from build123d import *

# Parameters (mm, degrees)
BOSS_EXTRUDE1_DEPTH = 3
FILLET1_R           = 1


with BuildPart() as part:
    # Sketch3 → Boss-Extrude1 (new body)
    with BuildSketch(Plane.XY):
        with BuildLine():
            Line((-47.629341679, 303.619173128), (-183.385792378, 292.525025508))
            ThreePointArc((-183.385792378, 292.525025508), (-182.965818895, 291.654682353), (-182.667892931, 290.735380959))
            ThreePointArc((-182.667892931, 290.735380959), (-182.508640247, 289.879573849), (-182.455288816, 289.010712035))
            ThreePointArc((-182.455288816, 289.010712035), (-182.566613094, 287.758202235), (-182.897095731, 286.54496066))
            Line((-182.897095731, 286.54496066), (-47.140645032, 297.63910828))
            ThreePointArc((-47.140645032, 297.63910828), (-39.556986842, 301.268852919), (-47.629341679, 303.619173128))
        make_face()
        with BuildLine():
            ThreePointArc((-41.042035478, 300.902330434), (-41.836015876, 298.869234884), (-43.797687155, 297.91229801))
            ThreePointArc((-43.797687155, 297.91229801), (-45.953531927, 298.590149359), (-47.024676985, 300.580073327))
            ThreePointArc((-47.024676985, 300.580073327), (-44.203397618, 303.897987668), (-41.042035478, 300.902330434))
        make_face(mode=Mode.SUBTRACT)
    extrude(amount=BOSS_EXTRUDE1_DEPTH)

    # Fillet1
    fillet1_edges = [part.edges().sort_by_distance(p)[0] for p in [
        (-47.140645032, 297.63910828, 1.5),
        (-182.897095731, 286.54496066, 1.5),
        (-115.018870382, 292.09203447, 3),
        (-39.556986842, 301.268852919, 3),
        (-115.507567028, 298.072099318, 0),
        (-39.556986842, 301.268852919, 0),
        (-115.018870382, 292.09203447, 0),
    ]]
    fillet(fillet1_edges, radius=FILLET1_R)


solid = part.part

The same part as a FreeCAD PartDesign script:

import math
import FreeCAD as App
import Part
import Sketcher

V = App.Vector


def edges_at(feature, points):
    """Names of the edges that pass closest to the given points."""
    edges = feature.Shape.Edges
    near = lambda p: min(range(len(edges)), key=lambda i: edges[i].distToShape(Part.Vertex(*p))[0])
    return sorted({f"Edge{near(p) + 1}" for p in points})

doc = App.newDocument("Part")
body = doc.addObject("PartDesign::Body", "Body")

# Sketch on XY plane
sketch1 = doc.addObject("Sketcher::SketchObject", "Sketch")
body.addObject(sketch1)
sketch1.AttachmentSupport = (doc.XY_Plane, [""])
sketch1.MapMode = "FlatFace"
sketch1.addGeometry([
    Part.LineSegment(V(-47.6, 303.6, 0), V(-183.4, 292.5, 0)),  # 0
    Part.ArcOfCircle(Part.Circle(V(-189.6, 289, 0), V(0, 0, 1), 7.1), math.radians(14.06), math.radians(29.66)),  # 1
    Part.ArcOfCircle(Part.Circle(V(-189.6, 289, 0), V(0, 0, 1), 7.1), math.radians(0), math.radians(14.06)),  # 2
    Part.ArcOfCircle(Part.Circle(V(-189.6, 289, 0), V(0, 0, 1), 7.1), math.radians(-20), math.radians(0)),  # 3
    Part.LineSegment(V(-182.9, 286.5, 0), V(-47.1, 297.6, 0)),  # 4
    Part.ArcOfCircle(Part.Circle(V(-44, 300.9, 0), V(0, 0, 1), 4.5), math.radians(-134), math.radians(143)),  # 5
    Part.ArcOfCircle(Part.Circle(V(-44, 300.9, 0), V(0, 0, 1), 3), math.radians(0), math.radians(186)),  # 6
    Part.ArcOfCircle(Part.Circle(V(-44, 300.9, 0), V(0, 0, 1), 3), math.radians(-85), math.radians(0)),  # 7
    Part.ArcOfCircle(Part.Circle(V(-44, 300.9, 0), V(0, 0, 1), 3), math.radians(-174), math.radians(-85)),  # 8
], False)
sketch1.addConstraint([
    Sketcher.Constraint("Coincident", 0, 2, 1, 2),
    Sketcher.Constraint("Tangent", 1, 1, 2, 2),
    Sketcher.Constraint("Tangent", 2, 1, 3, 2),
    Sketcher.Constraint("Coincident", 3, 1, 4, 1),
    Sketcher.Constraint("Coincident", 4, 2, 5, 1),
    Sketcher.Constraint("Coincident", 5, 2, 0, 1),
    Sketcher.Constraint("Tangent", 6, 1, 7, 2),
    Sketcher.Constraint("Tangent", 7, 1, 8, 2),
    Sketcher.Constraint("Tangent", 8, 1, 6, 2),
    Sketcher.Constraint("Coincident", 3, 3, 1, 3),
    Sketcher.Constraint("Coincident", 6, 3, 5, 3),
    Sketcher.Constraint("Parallel", 0, 4),
    Sketcher.Constraint("Horizontal", 3, 3, 2, 1),
    Sketcher.Constraint("Horizontal", 8, 3, 6, 1),
    Sketcher.Constraint("Equal", 0, 4),
    Sketcher.Constraint("Radius", 6, 3.0),
    Sketcher.Constraint("Radius", 5, 4.5),
    Sketcher.Constraint("Radius", 1, 7.101658),
    Sketcher.Constraint("DistanceY", -1, 1, 7, 1, 297.912298),
    Sketcher.Constraint("DistanceX", 0, 2, 1, 1, 0.717899),
    Sketcher.Constraint("Distance", 0, 136.209009),
    Sketcher.Constraint("DistanceY", -1, 1, 5, 3, 300.90233),
    Sketcher.Constraint("DistanceY", -1, 1, 1, 1, 290.735381),
    Sketcher.Constraint("DistanceX", 2, 1, -1, 1, 182.455289),
    Sketcher.Constraint("DistanceY", -1, 1, 3, 1, 286.544961),
    Sketcher.Constraint("DistanceY", -1, 1, 4, 2, 297.639108),
    Sketcher.Constraint("DistanceX", 4, 2, 8, 1, 0.115968),
])
pad1 = doc.addObject("PartDesign::Pad", "Pad")
body.addObject(pad1)
pad1.Profile = sketch1
pad1.Length = 3
doc.recompute()

fillet = doc.addObject("PartDesign::Fillet", "Fillet")
body.addObject(fillet)
fillet.Base = (pad1, edges_at(pad1, [
    (-47.141, 297.639, 1.5),
    (-182.897, 286.545, 1.5),
    (-115.019, 292.092, 3),
    (-39.557, 301.269, 3),
    (-115.508, 298.072, 0),
    (-39.557, 301.269, 0),
    (-115.019, 292.092, 0),
]))
fillet.Radius = 1

doc.recompute()
